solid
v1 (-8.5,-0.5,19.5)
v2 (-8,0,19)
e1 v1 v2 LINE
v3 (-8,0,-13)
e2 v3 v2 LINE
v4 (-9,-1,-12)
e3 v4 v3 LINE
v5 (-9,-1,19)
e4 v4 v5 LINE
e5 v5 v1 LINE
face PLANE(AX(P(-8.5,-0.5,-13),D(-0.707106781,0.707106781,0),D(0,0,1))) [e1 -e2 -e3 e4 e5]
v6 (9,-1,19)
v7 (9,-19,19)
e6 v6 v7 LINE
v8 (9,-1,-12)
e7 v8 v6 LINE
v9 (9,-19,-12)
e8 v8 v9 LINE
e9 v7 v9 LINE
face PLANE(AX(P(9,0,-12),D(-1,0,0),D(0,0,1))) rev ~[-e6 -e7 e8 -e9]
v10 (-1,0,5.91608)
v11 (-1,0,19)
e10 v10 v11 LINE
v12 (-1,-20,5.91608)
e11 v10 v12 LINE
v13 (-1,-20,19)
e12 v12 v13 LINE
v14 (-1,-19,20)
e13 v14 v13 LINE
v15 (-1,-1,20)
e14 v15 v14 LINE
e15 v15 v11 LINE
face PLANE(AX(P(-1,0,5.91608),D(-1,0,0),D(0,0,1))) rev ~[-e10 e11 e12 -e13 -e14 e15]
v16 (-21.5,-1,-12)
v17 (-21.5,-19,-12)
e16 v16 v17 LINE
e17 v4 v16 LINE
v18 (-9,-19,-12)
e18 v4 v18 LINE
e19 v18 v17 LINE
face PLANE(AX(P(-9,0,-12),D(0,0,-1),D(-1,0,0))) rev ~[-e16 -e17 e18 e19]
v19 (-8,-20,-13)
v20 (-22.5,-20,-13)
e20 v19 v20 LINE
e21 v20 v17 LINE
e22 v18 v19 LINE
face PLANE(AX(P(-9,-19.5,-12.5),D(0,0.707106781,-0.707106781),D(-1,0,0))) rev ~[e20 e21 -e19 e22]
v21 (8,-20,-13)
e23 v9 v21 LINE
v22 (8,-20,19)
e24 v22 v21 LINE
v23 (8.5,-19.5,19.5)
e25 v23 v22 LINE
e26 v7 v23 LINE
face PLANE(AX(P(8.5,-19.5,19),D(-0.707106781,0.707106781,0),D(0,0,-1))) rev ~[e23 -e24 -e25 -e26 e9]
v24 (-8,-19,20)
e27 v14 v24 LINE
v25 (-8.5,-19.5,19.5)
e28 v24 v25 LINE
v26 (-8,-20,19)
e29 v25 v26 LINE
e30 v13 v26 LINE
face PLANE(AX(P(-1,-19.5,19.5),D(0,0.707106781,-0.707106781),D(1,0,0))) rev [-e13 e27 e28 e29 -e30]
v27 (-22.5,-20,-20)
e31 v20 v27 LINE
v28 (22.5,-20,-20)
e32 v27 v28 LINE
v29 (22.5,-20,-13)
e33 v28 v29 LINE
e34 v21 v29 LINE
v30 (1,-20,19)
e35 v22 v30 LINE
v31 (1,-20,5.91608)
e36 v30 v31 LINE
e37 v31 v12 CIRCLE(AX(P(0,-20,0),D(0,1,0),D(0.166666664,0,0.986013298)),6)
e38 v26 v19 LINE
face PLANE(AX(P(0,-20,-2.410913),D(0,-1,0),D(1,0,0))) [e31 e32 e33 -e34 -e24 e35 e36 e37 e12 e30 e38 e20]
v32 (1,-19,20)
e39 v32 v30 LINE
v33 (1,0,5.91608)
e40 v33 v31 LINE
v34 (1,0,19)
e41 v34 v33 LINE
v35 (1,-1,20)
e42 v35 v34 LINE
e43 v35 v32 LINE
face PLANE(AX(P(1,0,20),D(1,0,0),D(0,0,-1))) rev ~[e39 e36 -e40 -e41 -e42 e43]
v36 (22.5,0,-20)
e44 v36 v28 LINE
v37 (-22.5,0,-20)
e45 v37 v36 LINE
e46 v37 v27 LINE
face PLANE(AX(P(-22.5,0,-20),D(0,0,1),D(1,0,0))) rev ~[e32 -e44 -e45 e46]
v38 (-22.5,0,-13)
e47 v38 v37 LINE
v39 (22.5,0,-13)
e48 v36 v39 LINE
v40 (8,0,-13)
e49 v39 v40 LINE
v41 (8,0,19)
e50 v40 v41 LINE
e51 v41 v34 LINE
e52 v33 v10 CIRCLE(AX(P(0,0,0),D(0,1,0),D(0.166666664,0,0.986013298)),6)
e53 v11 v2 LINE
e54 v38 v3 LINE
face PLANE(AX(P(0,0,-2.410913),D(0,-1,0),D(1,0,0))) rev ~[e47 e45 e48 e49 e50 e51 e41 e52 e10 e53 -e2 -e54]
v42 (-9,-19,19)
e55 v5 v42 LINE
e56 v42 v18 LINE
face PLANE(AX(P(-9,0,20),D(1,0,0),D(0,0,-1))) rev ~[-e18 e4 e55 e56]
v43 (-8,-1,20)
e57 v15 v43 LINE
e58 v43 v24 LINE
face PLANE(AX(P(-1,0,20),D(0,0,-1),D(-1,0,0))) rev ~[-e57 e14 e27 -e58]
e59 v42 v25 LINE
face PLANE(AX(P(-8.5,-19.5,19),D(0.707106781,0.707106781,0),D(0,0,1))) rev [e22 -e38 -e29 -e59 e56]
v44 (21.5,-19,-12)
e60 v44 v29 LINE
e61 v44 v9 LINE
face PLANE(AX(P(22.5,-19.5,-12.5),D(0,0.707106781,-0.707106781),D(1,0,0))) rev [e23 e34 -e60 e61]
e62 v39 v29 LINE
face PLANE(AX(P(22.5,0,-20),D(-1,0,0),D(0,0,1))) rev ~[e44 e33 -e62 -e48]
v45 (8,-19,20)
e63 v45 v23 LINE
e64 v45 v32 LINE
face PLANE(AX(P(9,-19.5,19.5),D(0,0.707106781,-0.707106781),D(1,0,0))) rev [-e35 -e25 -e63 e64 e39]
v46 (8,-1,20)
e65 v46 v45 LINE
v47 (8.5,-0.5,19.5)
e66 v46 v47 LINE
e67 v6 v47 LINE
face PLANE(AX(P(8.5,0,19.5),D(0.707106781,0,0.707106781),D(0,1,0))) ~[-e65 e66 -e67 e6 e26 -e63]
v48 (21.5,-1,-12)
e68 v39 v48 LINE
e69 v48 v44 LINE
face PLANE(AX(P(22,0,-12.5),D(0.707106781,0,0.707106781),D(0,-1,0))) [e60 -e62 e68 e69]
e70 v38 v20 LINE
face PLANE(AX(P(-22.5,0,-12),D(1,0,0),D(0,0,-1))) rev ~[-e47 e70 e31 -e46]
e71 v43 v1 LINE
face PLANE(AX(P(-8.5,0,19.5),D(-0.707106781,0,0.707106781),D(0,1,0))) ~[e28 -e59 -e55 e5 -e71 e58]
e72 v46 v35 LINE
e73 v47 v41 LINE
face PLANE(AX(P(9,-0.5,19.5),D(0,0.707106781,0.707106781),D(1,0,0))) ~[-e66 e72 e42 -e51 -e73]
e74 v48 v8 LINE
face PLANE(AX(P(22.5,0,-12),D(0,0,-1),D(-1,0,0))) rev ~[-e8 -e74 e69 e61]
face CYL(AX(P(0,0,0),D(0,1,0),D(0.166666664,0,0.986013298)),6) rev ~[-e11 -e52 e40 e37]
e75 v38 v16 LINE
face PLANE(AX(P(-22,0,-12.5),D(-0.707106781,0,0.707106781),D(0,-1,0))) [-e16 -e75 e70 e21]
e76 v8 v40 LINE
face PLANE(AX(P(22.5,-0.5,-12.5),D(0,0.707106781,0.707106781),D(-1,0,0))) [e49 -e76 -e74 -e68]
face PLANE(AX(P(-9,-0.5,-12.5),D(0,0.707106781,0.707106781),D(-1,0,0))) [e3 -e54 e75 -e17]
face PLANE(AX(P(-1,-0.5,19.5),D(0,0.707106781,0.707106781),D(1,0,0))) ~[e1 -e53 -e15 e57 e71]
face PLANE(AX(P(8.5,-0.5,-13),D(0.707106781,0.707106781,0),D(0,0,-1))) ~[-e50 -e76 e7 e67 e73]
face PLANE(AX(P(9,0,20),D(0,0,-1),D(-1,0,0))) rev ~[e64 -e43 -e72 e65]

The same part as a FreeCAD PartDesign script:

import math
import FreeCAD as App
import Part
import Sketcher
from FreeCAD import Vector


def edges_at(feature, points):
    """Names of the edges that pass closest to the given points."""
    edges = feature.Shape.Edges
    near = lambda p: min(range(len(edges)), key=lambda i: edges[i].distToShape(Part.Vertex(*p))[0])
    return sorted({f"Edge{near(p) + 1}" for p in points})

doc = App.newDocument("Part")
body = doc.addObject("PartDesign::Body", "Body")

# Sketch on XZ plane
sketch1 = body.newObject("Sketcher::SketchObject", "Sketch")
sketch1.AttachmentSupport = (doc.getObject("XZ_Plane"), [""])
sketch1.MapMode = "FlatFace"
sketch1.addGeometry([
    Part.LineSegment(Vector(-9, -12, 0), Vector(-22.5, -12, 0)),  # 0
    Part.LineSegment(Vector(-22.5, -12, 0), Vector(-22.5, -20, 0)),  # 1
    Part.LineSegment(Vector(-22.5, -20, 0), Vector(22.5, -20, 0)),  # 2
    Part.LineSegment(Vector(22.5, -20, 0), Vector(22.5, -12, 0)),  # 3
    Part.LineSegment(Vector(22.5, -12, 0), Vector(9, -12, 0)),  # 4
    Part.LineSegment(Vector(9, -12, 0), Vector(9, 20, 0)),  # 5
    Part.LineSegment(Vector(9, 20, 0), Vector(1, 20, 0)),  # 6
    Part.LineSegment(Vector(1, 20, 0), Vector(1, 5.91608, 0)),  # 7
    Part.ArcOfCircle(Part.Circle(Vector(0, 0, 0), Vector(0, 0, 1), 6), math.radians(99.594068), math.radians(440.405932)),  # 8
    Part.LineSegment(Vector(-1, 5.91608, 0), Vector(-1, 20, 0)),  # 9
    Part.LineSegment(Vector(-1, 20, 0), Vector(-9, 20, 0)),  # 10
    Part.LineSegment(Vector(-9, 20, 0), Vector(-9, -12, 0)),  # 11
], False)
sketch1.addConstraint([
    Sketcher.Constraint("Coincident", 0, 2, 1, 1),
    Sketcher.Constraint("Coincident", 1, 2, 2, 1),
    Sketcher.Constraint("Coincident", 2, 2, 3, 1),
    Sketcher.Constraint("Coincident", 3, 2, 4, 1),
    Sketcher.Constraint("Coincident", 4, 2, 5, 1),
    Sketcher.Constraint("Coincident", 5, 2, 6, 1),
    Sketcher.Constraint("Coincident", 6, 2, 7, 1),
    Sketcher.Constraint("Coincident", 7, 2, 8, 2),
    Sketcher.Constraint("Coincident", 8, 1, 9, 1),
    Sketcher.Constraint("Coincident", 9, 2, 10, 1),
    Sketcher.Constraint("Coincident", 10, 2, 11, 1),
    Sketcher.Constraint("Coincident", 11, 2, 0, 1),
    Sketcher.Constraint("Horizontal", 0),
    Sketcher.Constraint("Vertical", 1),
    Sketcher.Constraint("Horizontal", 2),
    Sketcher.Constraint("Vertical", 3),
    Sketcher.Constraint("Horizontal", 4),
    Sketcher.Constraint("Vertical", 5),
    Sketcher.Constraint("Horizontal", 6),
    Sketcher.Constraint("Vertical", 7),
    Sketcher.Constraint("Vertical", 9),
    Sketcher.Constraint("Horizontal", 10),
    Sketcher.Constraint("Vertical", 11),
    Sketcher.Constraint("Coincident", 8, 3, -1, 1),
    Sketcher.Constraint("Symmetric", 0, 2, 3, 2, -2),
    Sketcher.Constraint("Symmetric", 6, 2, 9, 2, -2),
    Sketcher.Constraint("Equal", 0, 4),
    Sketcher.Constraint("Equal", 10, 1),
    Sketcher.Constraint("Radius", 8, 6.0),
    Sketcher.Constraint("DistanceX", 2, 1, 2, 2, 45.0),
    Sketcher.Constraint("DistanceX", 6, 2, 6, 1, 8.0),
    Sketcher.Constraint("DistanceY", 5, 1, 5, 2, 32.0),
    Sketcher.Constraint("DistanceX", 0, 2, 0, 1, 13.5),
    Sketcher.Constraint("DistanceY", 0, 2, -1, 1, 12.0),
])
pad1 = body.newObject("PartDesign::Pad", "Pad")
pad1.Profile = sketch1
pad1.Length = 20
doc.recompute()

chamfer = body.newObject("PartDesign::Chamfer", "Chamfer")
chamfer.Base = (pad1, edges_at(pad1, [
    (-5, -20, 20),
    (-5, 0, 20),
    (5, 0, 20),
    (5, -20, 20),
    (9, -10, 20),
    (-9, -10, 20),
]))
chamfer.Size = 1
doc.recompute()

chamfer2 = body.newObject("PartDesign::Chamfer", "Chamfer001")
chamfer2.Base = (chamfer, edges_at(chamfer, [
    (15.75, 0, -12),
    (15.75, -20, -12),
    (22.5, -10, -12),
    (-15.75, -20, -12),
    (-22.5, -10, -12),
    (-15.75, 0, -12),
]))
chamfer2.Size = 1
doc.recompute()

chamfer3 = body.newObject("PartDesign::Chamfer", "Chamfer002")
chamfer3.Base = (chamfer2, edges_at(chamfer2, [
    (9, 0, 3),
    (-9, 0, 3),
    (9, -20, 3),
    (-9, -20, 3),
]))
chamfer3.Size = 1

doc.recompute()
